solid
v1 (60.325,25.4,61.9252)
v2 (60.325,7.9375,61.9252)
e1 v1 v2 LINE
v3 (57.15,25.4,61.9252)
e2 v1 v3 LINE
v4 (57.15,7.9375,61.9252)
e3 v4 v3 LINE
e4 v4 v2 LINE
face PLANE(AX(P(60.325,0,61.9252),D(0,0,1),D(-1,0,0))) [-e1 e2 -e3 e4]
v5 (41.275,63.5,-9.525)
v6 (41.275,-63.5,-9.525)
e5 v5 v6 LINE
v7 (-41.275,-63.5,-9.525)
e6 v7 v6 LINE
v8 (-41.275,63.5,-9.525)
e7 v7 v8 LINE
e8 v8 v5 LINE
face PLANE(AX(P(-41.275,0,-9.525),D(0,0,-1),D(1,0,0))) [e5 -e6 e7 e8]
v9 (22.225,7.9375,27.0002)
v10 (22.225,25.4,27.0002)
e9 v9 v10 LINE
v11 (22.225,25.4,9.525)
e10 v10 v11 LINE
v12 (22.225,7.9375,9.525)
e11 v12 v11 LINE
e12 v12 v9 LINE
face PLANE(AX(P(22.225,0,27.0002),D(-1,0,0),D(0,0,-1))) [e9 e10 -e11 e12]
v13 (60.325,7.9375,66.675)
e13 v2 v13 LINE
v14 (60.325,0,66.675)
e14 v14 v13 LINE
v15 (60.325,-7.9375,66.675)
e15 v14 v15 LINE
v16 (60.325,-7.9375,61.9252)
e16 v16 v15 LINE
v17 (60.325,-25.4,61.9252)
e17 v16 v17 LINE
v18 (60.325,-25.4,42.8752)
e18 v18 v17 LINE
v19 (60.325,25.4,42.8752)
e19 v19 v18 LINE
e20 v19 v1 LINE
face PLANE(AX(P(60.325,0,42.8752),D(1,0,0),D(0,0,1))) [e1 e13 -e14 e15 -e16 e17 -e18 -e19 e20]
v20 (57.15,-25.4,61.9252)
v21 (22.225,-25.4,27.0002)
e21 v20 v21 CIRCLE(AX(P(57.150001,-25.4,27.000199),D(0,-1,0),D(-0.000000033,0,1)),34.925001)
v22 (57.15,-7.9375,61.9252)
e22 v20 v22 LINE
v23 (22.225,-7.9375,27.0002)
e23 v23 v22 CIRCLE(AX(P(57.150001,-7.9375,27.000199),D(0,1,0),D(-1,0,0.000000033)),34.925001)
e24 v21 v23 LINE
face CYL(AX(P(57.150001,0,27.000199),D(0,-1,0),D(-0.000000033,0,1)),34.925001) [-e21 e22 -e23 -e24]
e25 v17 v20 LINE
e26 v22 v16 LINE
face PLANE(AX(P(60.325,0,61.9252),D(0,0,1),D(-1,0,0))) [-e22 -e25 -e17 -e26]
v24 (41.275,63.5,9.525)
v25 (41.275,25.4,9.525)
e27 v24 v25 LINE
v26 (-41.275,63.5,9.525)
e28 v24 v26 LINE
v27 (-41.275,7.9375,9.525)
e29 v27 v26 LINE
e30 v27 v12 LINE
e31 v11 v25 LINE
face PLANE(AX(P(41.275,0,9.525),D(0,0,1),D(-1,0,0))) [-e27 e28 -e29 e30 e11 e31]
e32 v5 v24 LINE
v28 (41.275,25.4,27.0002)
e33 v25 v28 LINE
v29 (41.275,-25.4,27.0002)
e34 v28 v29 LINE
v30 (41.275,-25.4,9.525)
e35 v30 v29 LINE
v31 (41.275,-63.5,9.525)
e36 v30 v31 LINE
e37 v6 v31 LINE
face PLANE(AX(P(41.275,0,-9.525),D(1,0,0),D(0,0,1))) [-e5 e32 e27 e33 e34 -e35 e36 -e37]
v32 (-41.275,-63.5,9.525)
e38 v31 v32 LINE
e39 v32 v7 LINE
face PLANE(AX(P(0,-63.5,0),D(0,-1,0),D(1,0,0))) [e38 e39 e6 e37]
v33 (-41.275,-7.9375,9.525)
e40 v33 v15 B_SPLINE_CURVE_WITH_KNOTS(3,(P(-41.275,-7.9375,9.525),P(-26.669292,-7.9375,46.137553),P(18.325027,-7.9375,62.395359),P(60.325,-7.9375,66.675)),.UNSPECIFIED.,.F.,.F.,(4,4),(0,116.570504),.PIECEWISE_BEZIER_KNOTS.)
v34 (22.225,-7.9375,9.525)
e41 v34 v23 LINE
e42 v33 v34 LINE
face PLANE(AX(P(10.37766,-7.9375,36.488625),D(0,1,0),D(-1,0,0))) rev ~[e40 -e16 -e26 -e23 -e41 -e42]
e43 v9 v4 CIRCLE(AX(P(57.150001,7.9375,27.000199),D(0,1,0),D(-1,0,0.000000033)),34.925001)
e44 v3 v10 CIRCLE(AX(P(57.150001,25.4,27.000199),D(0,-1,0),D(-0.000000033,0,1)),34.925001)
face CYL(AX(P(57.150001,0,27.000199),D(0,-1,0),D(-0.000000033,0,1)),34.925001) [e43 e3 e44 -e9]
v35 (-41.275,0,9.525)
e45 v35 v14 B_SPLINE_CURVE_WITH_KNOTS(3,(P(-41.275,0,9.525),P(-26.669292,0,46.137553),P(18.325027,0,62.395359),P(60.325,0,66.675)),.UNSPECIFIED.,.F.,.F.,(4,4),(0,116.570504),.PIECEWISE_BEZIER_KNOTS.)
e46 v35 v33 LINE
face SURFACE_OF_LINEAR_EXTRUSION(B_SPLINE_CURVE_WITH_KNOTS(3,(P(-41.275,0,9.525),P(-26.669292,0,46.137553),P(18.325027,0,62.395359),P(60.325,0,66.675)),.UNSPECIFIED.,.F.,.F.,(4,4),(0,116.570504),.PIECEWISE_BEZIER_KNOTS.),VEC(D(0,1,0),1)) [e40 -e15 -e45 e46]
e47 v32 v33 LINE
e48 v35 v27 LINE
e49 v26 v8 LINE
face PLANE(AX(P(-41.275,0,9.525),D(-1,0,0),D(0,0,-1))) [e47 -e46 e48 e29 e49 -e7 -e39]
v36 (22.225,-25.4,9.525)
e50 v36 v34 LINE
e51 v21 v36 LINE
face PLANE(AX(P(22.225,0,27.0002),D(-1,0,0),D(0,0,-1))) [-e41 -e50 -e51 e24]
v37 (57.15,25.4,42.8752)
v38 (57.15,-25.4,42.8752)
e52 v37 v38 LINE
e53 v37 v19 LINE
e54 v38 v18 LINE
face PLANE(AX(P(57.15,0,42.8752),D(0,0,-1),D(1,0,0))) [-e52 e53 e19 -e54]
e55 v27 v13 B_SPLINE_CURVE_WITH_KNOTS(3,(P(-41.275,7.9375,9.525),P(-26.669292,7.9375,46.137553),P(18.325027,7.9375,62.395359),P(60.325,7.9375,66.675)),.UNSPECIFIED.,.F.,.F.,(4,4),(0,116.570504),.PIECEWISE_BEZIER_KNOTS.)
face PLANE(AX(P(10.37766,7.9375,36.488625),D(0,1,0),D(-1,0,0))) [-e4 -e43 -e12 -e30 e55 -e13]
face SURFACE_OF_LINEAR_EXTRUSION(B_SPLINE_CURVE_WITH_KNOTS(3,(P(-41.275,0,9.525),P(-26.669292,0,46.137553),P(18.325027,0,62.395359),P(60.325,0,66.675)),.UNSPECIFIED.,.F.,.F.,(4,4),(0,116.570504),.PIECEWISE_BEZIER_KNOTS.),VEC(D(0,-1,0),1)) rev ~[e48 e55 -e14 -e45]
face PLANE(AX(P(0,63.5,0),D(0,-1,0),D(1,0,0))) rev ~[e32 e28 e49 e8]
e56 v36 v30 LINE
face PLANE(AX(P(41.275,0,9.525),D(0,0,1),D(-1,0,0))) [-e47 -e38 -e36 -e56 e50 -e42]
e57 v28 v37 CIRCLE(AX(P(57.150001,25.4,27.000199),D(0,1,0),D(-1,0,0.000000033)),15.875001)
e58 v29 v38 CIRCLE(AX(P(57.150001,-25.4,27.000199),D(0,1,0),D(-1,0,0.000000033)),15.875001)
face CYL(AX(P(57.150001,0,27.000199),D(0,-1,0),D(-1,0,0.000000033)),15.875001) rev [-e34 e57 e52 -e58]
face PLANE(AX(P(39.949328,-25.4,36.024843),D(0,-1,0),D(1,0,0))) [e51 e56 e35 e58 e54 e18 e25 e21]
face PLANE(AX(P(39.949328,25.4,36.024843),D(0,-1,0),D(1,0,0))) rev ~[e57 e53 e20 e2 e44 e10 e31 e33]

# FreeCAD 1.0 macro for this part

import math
import FreeCAD as App
import Part
import Sketcher
Q = App.Units.Quantity


def add_polygon(sketch, points):
    """Adds a closed chain of lines whose ends are joined by coincident constraints."""
    first, n = sketch.GeometryCount, len(points)
    for a, b in zip(points, points[1:] + points[:1]):
        sketch.addGeometry(Part.LineSegment(App.Vector(*a, 0), App.Vector(*b, 0)), False)
    for i in range(n):
        sketch.addConstraint(Sketcher.Constraint("Coincident", first + i, 2, first + (i + 1) % n, 1))

doc = App.newDocument("Part")
body = doc.addObject("PartDesign::Body", "Body")

# Sketch on XZ plane
sketch1 = body.newObject("Sketcher::SketchObject", "Sketch")
sketch1.AttachmentSupport = (doc.getObject("XZ_Plane"), [""])
sketch1.MapMode = "FlatFace"
add_polygon(sketch1, [(-41, -10), (41, -10), (41, 10), (-41, 10)])  # lines 0-3
sketch1.addConstraint(Sketcher.Constraint("Horizontal", 0))
sketch1.addConstraint(Sketcher.Constraint("Vertical", 1))
sketch1.addConstraint(Sketcher.Constraint("Horizontal", 2))
sketch1.addConstraint(Sketcher.Constraint("Vertical", 3))
sketch1.addConstraint(Sketcher.Constraint("Symmetric", 0, 2, 2, 2, -1, 1))
sketch1.addConstraint(Sketcher.Constraint("DistanceX", 0, 1, 0, 2, Q("3.25 in")))
sketch1.addConstraint(Sketcher.Constraint("DistanceY", 1, 1, 1, 2, Q("0.75 in")))
pad1 = body.newObject("PartDesign::Pad", "Pad")
pad1.Profile = sketch1
pad1.Length = Q("5 in")
pad1.Midplane = True

# Sketch on XZ plane
sketch2 = body.newObject("Sketcher::SketchObject", "Sketch001")
sketch2.AttachmentSupport = (doc.getObject("XZ_Plane"), [""])
sketch2.MapMode = "FlatFace"
sketch2.addGeometry(Part.LineSegment(App.Vector(22.2, 9.5, 0), App.Vector(41.3, 9.5, 0)), False)
sketch2.addGeometry(Part.LineSegment(App.Vector(41.3, 9.5, 0), App.Vector(41.3, 27, 0)), False)
sketch2.addGeometry(Part.ArcOfCircle(Part.Circle(App.Vector(57.2, 27, 0), App.Vector(0, 0, 1), 15.9), math.radians(90), math.radians(180)), False)
sketch2.addGeometry(Part.LineSegment(App.Vector(57.1, 42.9, 0), App.Vector(60.3, 42.9, 0)), False)
sketch2.addGeometry(Part.LineSegment(App.Vector(60.3, 42.9, 0), App.Vector(60.3, 61.9, 0)), False)
sketch2.addGeometry(Part.LineSegment(App.Vector(60.3, 61.9, 0), App.Vector(57.1, 61.9, 0)), False)
sketch2.addGeometry(Part.ArcOfCircle(Part.Circle(App.Vector(57.2, 27, 0), App.Vector(0, 0, 1), 34.9), math.radians(90), math.radians(180)), False)
sketch2.addGeometry(Part.LineSegment(App.Vector(22.2, 27, 0), App.Vector(22.2, 9.5, 0)), False)
sketch2.addConstraint(Sketcher.Constraint("Coincident", 0, 2, 1, 1))
sketch2.addConstraint(Sketcher.Constraint("Tangent", 1, 2, 2, 2))
sketch2.addConstraint(Sketcher.Constraint("Tangent", 2, 1, 3, 1))
sketch2.addConstraint(Sketcher.Constraint("Coincident", 3, 2, 4, 1))
sketch2.addConstraint(Sketcher.Constraint("Coincident", 4, 2, 5, 1))
sketch2.addConstraint(Sketcher.Constraint("Tangent", 5, 2, 6, 1))
sketch2.addConstraint(Sketcher.Constraint("Tangent", 6, 2, 7, 1))
sketch2.addConstraint(Sketcher.Constraint("Coincident", 7, 2, 0, 1))
sketch2.addConstraint(Sketcher.Constraint("Horizontal", 0))
sketch2.addConstraint(Sketcher.Constraint("Vertical", 1))
sketch2.addConstraint(Sketcher.Constraint("Horizontal", 3))
sketch2.addConstraint(Sketcher.Constraint("Vertical", 4))
sketch2.addConstraint(Sketcher.Constraint("Horizontal", 5))
sketch2.addConstraint(Sketcher.Constraint("Vertical", 7))
sketch2.addConstraint(Sketcher.Constraint("Coincident", 6, 3, 2, 3))
sketch2.addConstraint(Sketcher.Constraint("Radius", 2, Q("0.625 in")))
sketch2.addConstraint(Sketcher.Constraint("Radius", 6, Q("1.375 in")))
sketch2.addConstraint(Sketcher.Constraint("DistanceX", 3, 1, 3, 2, Q("0.125 in")))
sketch2.addConstraint(Sketcher.Constraint("DistanceY", 1, 1, 1, 2, Q("0.688 in")))
sketch2.addConstraint(Sketcher.Constraint("DistanceX", -1, 1, 2, 3, Q("2.25 in")))
sketch2.addConstraint(Sketcher.Constraint("DistanceY", -1, 1, 2, 3, Q("1.063 in")))
pad2 = body.newObject("PartDesign::Pad", "Pad001")
pad2.Profile = sketch2
pad2.Length = Q("2 in")
pad2.Midplane = True

# Sketch on XZ plane
sketch3 = body.newObject("Sketcher::SketchObject", "Sketch002")
sketch3.AttachmentSupport = (doc.getObject("XZ_Plane"), [""])
sketch3.MapMode = "FlatFace"
sketch3.addGeometry(Part.BSplineCurve([App.Vector(-41.275, 9.525, 0), App.Vector(-26.669292, 46.137553, 0), App.Vector(18.325027, 62.395359, 0), App.Vector(60.325, 66.675, 0)], [4, 4], [0, 116.570504], False, 3, [1, 1, 1, 1], False), False)
sketch3.addGeometry(Part.LineSegment(App.Vector(-41.275, 9.525, 0), App.Vector(22.225, 9.525, 0)), False)
sketch3.addGeometry(Part.LineSegment(App.Vector(22.225, 9.525, 0), App.Vector(22.225, 27.0002, 0)), False)
sketch3.addGeometry(Part.ArcOfCircle(Part.Circle(App.Vector(57.150001, 27.000199, 0), App.Vector(0, 0, 1), 34.925001), math.radians(90.000002), math.radians(179.999998)), False)
sketch3.addGeometry(Part.LineSegment(App.Vector(57.15, 61.9252, 0), App.Vector(60.325, 61.9252, 0)), False)
sketch3.addGeometry(Part.LineSegment(App.Vector(60.325, 61.9252, 0), App.Vector(60.325, 66.675, 0)), False)
sketch3.addConstraint(Sketcher.Constraint("Block", 0))
sketch3.addConstraint(Sketcher.Constraint("Coincident", 0, 1, 1, 1))
sketch3.addConstraint(Sketcher.Constraint("Coincident", 1, 2, 2, 1))
sketch3.addConstraint(Sketcher.Constraint("Tangent", 2, 2, 3, 2))
sketch3.addConstraint(Sketcher.Constraint("Tangent", 3, 1, 4, 1))
sketch3.addConstraint(Sketcher.Constraint("Coincident", 4, 2, 5, 1))
sketch3.addConstraint(Sketcher.Constraint("Coincident", 5, 2, 0, 2))
sketch3.addConstraint(Sketcher.Constraint("Horizontal", 1))
sketch3.addConstraint(Sketcher.Constraint("Vertical", 2))
sketch3.addConstraint(Sketcher.Constraint("Horizontal", 4))
sketch3.addConstraint(Sketcher.Constraint("Vertical", 5))
sketch3.addConstraint(Sketcher.Constraint("DistanceX", 1, 1, 1, 2, Q("2.5 in")))
sketch3.addConstraint(Sketcher.Constraint("Radius", 3, Q("1.375 in")))
sketch3.addConstraint(Sketcher.Constraint("DistanceY", 2, 1, 2, 2, Q("0.688 in")))
pad3 = body.newObject("PartDesign::Pad", "Pad002")
pad3.Profile = sketch3
pad3.Length = Q("0.625 in")
pad3.Midplane = True

doc.recompute()
